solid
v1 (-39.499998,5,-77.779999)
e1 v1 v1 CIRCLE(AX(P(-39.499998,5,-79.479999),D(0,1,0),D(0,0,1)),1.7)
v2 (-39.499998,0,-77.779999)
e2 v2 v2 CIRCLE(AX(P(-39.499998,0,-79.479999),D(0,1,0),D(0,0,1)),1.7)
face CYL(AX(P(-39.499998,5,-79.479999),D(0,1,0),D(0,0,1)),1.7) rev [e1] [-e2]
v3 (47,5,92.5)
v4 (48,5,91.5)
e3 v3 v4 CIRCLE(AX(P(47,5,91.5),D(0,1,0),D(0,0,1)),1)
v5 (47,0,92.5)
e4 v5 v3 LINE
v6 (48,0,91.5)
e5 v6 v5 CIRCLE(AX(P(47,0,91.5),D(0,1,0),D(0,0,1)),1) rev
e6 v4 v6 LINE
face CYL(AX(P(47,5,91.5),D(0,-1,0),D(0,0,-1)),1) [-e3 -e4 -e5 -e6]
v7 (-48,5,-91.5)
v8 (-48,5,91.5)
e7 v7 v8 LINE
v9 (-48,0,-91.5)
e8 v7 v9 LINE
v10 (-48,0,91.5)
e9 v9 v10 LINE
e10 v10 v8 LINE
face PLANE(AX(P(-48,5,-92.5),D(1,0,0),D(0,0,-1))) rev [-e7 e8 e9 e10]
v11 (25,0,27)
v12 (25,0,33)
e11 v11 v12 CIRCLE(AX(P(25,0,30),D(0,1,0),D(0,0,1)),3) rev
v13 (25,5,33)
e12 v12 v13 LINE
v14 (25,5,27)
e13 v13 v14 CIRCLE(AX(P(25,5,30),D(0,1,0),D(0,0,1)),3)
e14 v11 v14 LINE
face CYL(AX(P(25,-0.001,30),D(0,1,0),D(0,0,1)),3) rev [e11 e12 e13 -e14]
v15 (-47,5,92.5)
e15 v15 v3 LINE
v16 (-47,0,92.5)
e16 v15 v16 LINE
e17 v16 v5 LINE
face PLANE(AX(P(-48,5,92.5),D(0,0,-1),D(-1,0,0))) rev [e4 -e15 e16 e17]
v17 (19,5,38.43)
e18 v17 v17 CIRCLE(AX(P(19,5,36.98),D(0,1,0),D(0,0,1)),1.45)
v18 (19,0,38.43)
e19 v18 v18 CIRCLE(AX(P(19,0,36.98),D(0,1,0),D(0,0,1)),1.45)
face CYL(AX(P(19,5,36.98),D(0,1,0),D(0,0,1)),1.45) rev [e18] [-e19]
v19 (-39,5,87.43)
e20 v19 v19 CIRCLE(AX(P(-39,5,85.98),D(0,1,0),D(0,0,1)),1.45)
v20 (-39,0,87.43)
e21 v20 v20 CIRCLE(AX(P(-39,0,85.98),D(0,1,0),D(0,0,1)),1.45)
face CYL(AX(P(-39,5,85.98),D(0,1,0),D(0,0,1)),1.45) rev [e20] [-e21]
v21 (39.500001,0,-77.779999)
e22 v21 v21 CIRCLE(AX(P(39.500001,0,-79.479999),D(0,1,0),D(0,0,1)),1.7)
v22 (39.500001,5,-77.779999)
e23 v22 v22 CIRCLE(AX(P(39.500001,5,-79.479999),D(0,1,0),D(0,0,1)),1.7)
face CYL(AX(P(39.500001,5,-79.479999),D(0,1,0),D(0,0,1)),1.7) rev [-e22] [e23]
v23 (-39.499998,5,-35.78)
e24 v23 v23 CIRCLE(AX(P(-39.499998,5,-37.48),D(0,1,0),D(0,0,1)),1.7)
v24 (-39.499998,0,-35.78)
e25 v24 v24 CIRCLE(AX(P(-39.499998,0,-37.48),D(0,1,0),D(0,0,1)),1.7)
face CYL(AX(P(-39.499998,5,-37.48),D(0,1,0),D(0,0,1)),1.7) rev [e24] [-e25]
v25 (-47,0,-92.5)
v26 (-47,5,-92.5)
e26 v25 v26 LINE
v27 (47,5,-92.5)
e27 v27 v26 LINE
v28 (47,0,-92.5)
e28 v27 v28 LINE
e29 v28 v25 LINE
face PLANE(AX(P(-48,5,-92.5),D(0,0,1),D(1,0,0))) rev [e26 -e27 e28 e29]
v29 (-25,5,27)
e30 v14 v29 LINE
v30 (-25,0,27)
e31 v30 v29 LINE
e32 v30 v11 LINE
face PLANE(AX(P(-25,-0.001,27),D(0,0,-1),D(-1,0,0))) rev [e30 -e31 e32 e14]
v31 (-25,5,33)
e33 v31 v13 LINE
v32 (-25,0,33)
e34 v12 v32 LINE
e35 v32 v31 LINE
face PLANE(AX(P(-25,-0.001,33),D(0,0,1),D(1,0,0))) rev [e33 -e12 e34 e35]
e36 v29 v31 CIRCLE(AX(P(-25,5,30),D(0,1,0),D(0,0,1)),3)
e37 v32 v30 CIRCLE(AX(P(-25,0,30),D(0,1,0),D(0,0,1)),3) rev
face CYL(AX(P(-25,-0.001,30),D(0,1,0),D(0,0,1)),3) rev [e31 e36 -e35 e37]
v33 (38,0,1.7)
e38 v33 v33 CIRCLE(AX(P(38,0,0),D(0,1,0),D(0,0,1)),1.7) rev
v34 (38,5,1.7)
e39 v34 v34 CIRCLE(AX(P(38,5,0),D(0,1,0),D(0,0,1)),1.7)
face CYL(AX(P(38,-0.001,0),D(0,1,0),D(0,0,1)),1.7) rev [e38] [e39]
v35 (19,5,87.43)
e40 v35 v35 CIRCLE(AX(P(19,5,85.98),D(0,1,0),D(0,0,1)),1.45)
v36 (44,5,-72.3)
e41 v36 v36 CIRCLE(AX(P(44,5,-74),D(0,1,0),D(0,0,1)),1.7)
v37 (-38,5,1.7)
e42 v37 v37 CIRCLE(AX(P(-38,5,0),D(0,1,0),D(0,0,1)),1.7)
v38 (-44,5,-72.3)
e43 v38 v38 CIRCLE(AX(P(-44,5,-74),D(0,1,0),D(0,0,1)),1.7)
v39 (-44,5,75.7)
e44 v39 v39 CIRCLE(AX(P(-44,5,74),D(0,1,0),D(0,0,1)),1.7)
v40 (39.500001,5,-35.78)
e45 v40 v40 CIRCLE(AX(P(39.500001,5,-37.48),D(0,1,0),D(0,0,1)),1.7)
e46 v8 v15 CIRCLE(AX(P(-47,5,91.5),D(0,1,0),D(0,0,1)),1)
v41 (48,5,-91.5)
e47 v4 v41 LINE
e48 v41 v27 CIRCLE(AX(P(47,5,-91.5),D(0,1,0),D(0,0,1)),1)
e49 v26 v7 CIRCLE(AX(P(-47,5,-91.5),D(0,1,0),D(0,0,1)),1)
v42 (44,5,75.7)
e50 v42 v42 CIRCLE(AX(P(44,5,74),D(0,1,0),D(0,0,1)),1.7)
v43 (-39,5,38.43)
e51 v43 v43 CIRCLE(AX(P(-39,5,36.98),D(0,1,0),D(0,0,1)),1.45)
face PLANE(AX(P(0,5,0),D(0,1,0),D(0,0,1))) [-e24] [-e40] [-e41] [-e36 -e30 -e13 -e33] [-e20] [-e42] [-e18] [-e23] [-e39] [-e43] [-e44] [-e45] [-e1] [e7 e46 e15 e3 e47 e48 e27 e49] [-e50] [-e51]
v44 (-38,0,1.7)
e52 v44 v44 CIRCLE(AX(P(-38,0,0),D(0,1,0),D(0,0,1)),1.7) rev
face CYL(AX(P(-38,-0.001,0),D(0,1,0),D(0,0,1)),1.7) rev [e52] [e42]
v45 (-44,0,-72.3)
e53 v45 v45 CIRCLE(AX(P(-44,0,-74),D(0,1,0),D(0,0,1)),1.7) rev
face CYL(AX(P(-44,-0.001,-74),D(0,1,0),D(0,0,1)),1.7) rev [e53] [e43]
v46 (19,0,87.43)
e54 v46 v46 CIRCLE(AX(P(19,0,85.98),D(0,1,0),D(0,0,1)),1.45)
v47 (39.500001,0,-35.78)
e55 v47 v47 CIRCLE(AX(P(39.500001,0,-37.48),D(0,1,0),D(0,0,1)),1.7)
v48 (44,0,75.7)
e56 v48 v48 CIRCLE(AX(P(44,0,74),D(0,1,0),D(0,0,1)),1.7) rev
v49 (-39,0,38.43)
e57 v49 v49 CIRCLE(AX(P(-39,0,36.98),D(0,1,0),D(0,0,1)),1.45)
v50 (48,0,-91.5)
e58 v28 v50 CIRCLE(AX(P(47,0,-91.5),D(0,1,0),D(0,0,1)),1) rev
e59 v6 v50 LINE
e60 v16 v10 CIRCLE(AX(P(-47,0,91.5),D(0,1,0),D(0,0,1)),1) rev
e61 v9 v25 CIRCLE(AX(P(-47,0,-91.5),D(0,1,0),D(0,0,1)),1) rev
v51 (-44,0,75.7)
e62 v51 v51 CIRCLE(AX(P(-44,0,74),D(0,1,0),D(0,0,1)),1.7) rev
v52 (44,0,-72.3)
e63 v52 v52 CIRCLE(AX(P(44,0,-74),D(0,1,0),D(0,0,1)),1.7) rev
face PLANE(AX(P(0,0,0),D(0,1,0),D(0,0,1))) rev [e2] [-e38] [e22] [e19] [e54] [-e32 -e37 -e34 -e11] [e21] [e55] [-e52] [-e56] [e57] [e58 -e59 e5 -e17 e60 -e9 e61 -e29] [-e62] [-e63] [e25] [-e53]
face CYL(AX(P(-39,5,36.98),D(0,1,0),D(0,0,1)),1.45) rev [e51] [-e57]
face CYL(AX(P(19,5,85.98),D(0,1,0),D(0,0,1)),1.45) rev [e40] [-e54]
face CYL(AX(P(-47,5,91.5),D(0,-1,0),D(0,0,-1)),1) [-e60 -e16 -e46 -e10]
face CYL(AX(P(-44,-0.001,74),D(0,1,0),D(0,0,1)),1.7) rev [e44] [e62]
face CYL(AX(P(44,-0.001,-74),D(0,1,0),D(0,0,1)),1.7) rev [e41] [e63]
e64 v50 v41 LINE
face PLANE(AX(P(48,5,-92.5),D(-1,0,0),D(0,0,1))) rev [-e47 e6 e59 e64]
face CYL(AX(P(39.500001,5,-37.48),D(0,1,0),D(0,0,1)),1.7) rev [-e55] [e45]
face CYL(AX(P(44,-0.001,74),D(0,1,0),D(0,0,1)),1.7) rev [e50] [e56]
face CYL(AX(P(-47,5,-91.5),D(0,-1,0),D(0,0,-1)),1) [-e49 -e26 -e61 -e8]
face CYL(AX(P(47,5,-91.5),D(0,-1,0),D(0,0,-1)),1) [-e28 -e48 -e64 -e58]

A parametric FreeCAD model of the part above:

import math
import FreeCAD as App
import Part
import Sketcher


def edges_at(feature, points):
    """Names of the edges that pass closest to the given points."""
    edges = feature.Shape.Edges
    near = lambda p: min(range(len(edges)), key=lambda i: edges[i].distToShape(Part.Vertex(*p))[0])
    return sorted({f"Edge{near(p) + 1}" for p in points})


def add_polygon(sketch, points):
    """Adds a closed chain of lines whose ends are joined by coincident constraints."""
    first, n = sketch.GeometryCount, len(points)
    for a, b in zip(points, points[1:] + points[:1]):
        sketch.addGeometry(Part.LineSegment(App.Vector(*a, 0), App.Vector(*b, 0)), False)
    for i in range(n):
        sketch.addConstraint(Sketcher.Constraint("Coincident", first + i, 2, first + (i + 1) % n, 1))

doc = App.newDocument("Part")
body = doc.addObject("PartDesign::Body", "Body")

# Sketch on XZ plane
sketch1 = doc.addObject("Sketcher::SketchObject", "Sketch")
body.addObject(sketch1)
sketch1.AttachmentSupport = (doc.XZ_Plane, [""])
sketch1.MapMode = "FlatFace"
add_polygon(sketch1, [(-48, -92), (-48, 92), (48, 92), (48, -92)])  # lines 0-3
sketch1.addConstraint([
    Sketcher.Constraint("Vertical", 0),
    Sketcher.Constraint("Horizontal", 1),
    Sketcher.Constraint("Vertical", 2),
    Sketcher.Constraint("Horizontal", 3),
    Sketcher.Constraint("Symmetric", 0, 2, 2, 2, -1, 1),
    Sketcher.Constraint("DistanceX", 1, 1, 1, 2, 96.0),
    Sketcher.Constraint("DistanceY", 0, 1, 0, 2, 185.0),
])
pad1 = doc.addObject("PartDesign::Pad", "Pad")
body.addObject(pad1)
pad1.Profile = sketch1
pad1.Length = 5
pad1.Reversed = True

# Sketch on XZ plane
sketch2 = doc.addObject("Sketcher::SketchObject", "Sketch001")
body.addObject(sketch2)
sketch2.AttachmentSupport = (doc.XZ_Plane, [""])
sketch2.MapMode = "FlatFace"
sketch2.AttachmentOffset = App.Placement(App.Vector(0, 0, -5), App.Rotation())
sketch2.addGeometry(Part.Circle(App.Vector(44, -74, 0), App.Vector(0, 0, 1), 1.7), False)
sketch2.addConstraint([
    Sketcher.Constraint("Diameter", 0, 3.4),
    Sketcher.Constraint("DistanceX", -1, 1, 0, 3, 44.0),
    Sketcher.Constraint("DistanceY", 0, 3, -1, 1, 74.0),
])
pocket1 = doc.addObject("PartDesign::Pocket", "Pocket")
body.addObject(pocket1)
pocket1.Profile = sketch2
pocket1.Type = "UpToFirst"
pocket1.Reversed = True

# Sketch on XZ plane
sketch3 = doc.addObject("Sketcher::SketchObject", "Sketch002")
body.addObject(sketch3)
sketch3.AttachmentSupport = (doc.XZ_Plane, [""])
sketch3.MapMode = "FlatFace"
sketch3.AttachmentOffset = App.Placement(App.Vector(0, 0, -5), App.Rotation())
sketch3.addGeometry(Part.Circle(App.Vector(-44, -74, 0), App.Vector(0, 0, 1), 1.7), False)
sketch3.addConstraint([
    Sketcher.Constraint("Diameter", 0, 3.4),
    Sketcher.Constraint("DistanceX", 0, 3, -1, 1, 44.0),
    Sketcher.Constraint("DistanceY", 0, 3, -1, 1, 74.0),
])
pocket2 = doc.addObject("PartDesign::Pocket", "Pocket001")
body.addObject(pocket2)
pocket2.Profile = sketch3
pocket2.Type = "UpToFirst"
pocket2.Reversed = True

# Sketch on XZ plane
sketch4 = doc.addObject("Sketcher::SketchObject", "Sketch003")
body.addObject(sketch4)
sketch4.AttachmentSupport = (doc.XZ_Plane, [""])
sketch4.MapMode = "FlatFace"
sketch4.AttachmentOffset = App.Placement(App.Vector(0, 0, -5), App.Rotation())
sketch4.addGeometry(Part.Circle(App.Vector(44, 74, 0), App.Vector(0, 0, 1), 1.7), False)
sketch4.addConstraint([
    Sketcher.Constraint("Diameter", 0, 3.4),
    Sketcher.Constraint("DistanceX", -1, 1, 0, 3, 44.0),
    Sketcher.Constraint("DistanceY", -1, 1, 0, 3, 74.0),
])
pocket3 = doc.addObject("PartDesign::Pocket", "Pocket002")
body.addObject(pocket3)
pocket3.Profile = sketch4
pocket3.Type = "UpToFirst"
pocket3.Reversed = True

# Sketch on XZ plane
sketch5 = doc.addObject("Sketcher::SketchObject", "Sketch004")
body.addObject(sketch5)
sketch5.AttachmentSupport = (doc.XZ_Plane, [""])
sketch5.MapMode = "FlatFace"
sketch5.AttachmentOffset = App.Placement(App.Vector(0, 0, -5), App.Rotation())
sketch5.addGeometry(Part.Circle(App.Vector(-44, 74, 0), App.Vector(0, 0, 1), 1.7), False)
sketch5.addConstraint([
    Sketcher.Constraint("Diameter", 0, 3.4),
    Sketcher.Constraint("DistanceX", 0, 3, -1, 1, 44.0),
    Sketcher.Constraint("DistanceY", -1, 1, 0, 3, 74.0),
])
pocket4 = doc.addObject("PartDesign::Pocket", "Pocket003")
body.addObject(pocket4)
pocket4.Profile = sketch5
pocket4.Type = "UpToFirst"
pocket4.Reversed = True

# Sketch on XZ plane
sketch6 = doc.addObject("Sketcher::SketchObject", "Sketch005")
body.addObject(sketch6)
sketch6.AttachmentSupport = (doc.XZ_Plane, [""])
sketch6.MapMode = "FlatFace"
sketch6.AttachmentOffset = App.Placement(App.Vector(0, 0, -5), App.Rotation())
sketch6.addGeometry(Part.Circle(App.Vector(38, 0, 0), App.Vector(0, 0, 1), 1.7), False)
sketch6.addConstraint([
    Sketcher.Constraint("PointOnObject", 0, 3, -1),
    Sketcher.Constraint("Diameter", 0, 3.4),
    Sketcher.Constraint("DistanceX", -1, 1, 0, 3, 38.0),
])
pocket5 = doc.addObject("PartDesign::Pocket", "Pocket004")
body.addObject(pocket5)
pocket5.Profile = sketch6
pocket5.Type = "UpToFirst"
pocket5.Reversed = True

# Sketch on XZ plane
sketch7 = doc.addObject("Sketcher::SketchObject", "Sketch006")
body.addObject(sketch7)
sketch7.AttachmentSupport = (doc.XZ_Plane, [""])
sketch7.MapMode = "FlatFace"
sketch7.AttachmentOffset = App.Placement(App.Vector(0, 0, -5), App.Rotation())
sketch7.addGeometry(Part.Circle(App.Vector(-38, 0, 0), App.Vector(0, 0, 1), 1.7), False)
sketch7.addConstraint([
    Sketcher.Constraint("PointOnObject", 0, 3, -1),
    Sketcher.Constraint("Diameter", 0, 3.4),
    Sketcher.Constraint("DistanceX", 0, 3, -1, 1, 38.0),
])
pocket6 = doc.addObject("PartDesign::Pocket", "Pocket005")
body.addObject(pocket6)
pocket6.Profile = sketch7
pocket6.Type = "UpToFirst"
pocket6.Reversed = True
doc.recompute()

fillet = doc.addObject("PartDesign::Fillet", "Fillet")
body.addObject(fillet)
fillet.Base = (pocket6, edges_at(pocket6, [
    (48, 2.5, 92.5),
    (-48, 2.5, 92.5),
    (-48, 2.5, -92.5),
    (48, 2.5, -92.5),
]))
fillet.Radius = 1

# Sketch on XZ plane
sketch8 = doc.addObject("Sketcher::SketchObject", "Sketch007")
body.addObject(sketch8)
sketch8.AttachmentSupport = (doc.XZ_Plane, [""])
sketch8.MapMode = "FlatFace"
sketch8.AttachmentOffset = App.Placement(App.Vector(0, 0, -5), App.Rotation())
sketch8.addGeometry([
    Part.Circle(App.Vector(-39, 86, 0), App.Vector(0, 0, 1), 1.4),
    Part.Circle(App.Vector(19, 86, 0), App.Vector(0, 0, 1), 1.4),
    Part.Circle(App.Vector(-39, 37, 0), App.Vector(0, 0, 1), 1.4),
    Part.Circle(App.Vector(19, 37, 0), App.Vector(0, 0, 1), 1.4),
], False)
sketch8.addConstraint([
    Sketcher.Constraint("Equal", 0, 1),
    Sketcher.Constraint("Equal", 1, 2),
    Sketcher.Constraint("Equal", 2, 3),
    Sketcher.Constraint("Horizontal", 0, 3, 1, 3),
    Sketcher.Constraint("Horizontal", 2, 3, 3, 3),
    Sketcher.Constraint("Vertical", 0, 3, 2, 3),
    Sketcher.Constraint("Vertical", 1, 3, 3, 3),
    Sketcher.Constraint("Diameter", 0, 2.9),
    Sketcher.Constraint("DistanceX", 0, 3, -1, 1, 39.0),
    Sketcher.Constraint("DistanceX", -1, 1, 1, 3, 19.0),
    Sketcher.Constraint("DistanceY", 2, 3, 0, 3, 49.0),
    Sketcher.Constraint("DistanceY", -1, 1, 0, 3, 85.98),
])
doc.recompute()
hole = doc.addObject("PartDesign::Hole", "Hole")
body.addObject(hole)
hole.Profile = sketch8
hole.ThreadType = "None"
hole.Diameter = 2.9
hole.DepthType = "ThroughAll"
hole.Reversed = True

# Sketch on XZ plane
sketch9 = doc.addObject("Sketcher::SketchObject", "Sketch008")
body.addObject(sketch9)
sketch9.AttachmentSupport = (doc.XZ_Plane, [""])
sketch9.MapMode = "FlatFace"
sketch9.AttachmentOffset = App.Placement(App.Vector(0, 0, -5), App.Rotation())
sketch9.addGeometry([
    Part.Circle(App.Vector(-39.5, -79.5, 0), App.Vector(0, 0, 1), 1.7),
    Part.Circle(App.Vector(-39.5, -37.5, 0), App.Vector(0, 0, 1), 1.7),
    Part.Circle(App.Vector(39.5, -37.5, 0), App.Vector(0, 0, 1), 1.7),
    Part.Circle(App.Vector(39.5, -79.5, 0), App.Vector(0, 0, 1), 1.7),
], False)
sketch9.addConstraint([
    Sketcher.Constraint("Equal", 0, 1),
    Sketcher.Constraint("Equal", 1, 2),
    Sketcher.Constraint("Equal", 2, 3),
    Sketcher.Constraint("Symmetric", 1, 3, 2, 3, -2),
    Sketcher.Constraint("Symmetric", 0, 3, 3, 3, -2),
    Sketcher.Constraint("Vertical", 0, 3, 1, 3),
    Sketcher.Constraint("Diameter", 0, 3.4),
    Sketcher.Constraint("DistanceY", 0, 3, 1, 3, 42.0),
    Sketcher.Constraint("DistanceX", 1, 3, 2, 3, 78.999999),
    Sketcher.Constraint("DistanceY", 0, 3, -1, 1, 79.479999),
])
doc.recompute()
hole2 = doc.addObject("PartDesign::Hole", "Hole001")
body.addObject(hole2)
hole2.Profile = sketch9
hole2.ThreadType = "None"
hole2.Diameter = 3.4
hole2.DepthType = "ThroughAll"
hole2.Reversed = True

# Sketch on XZ plane
sketch10 = doc.addObject("Sketcher::SketchObject", "Sketch009")
body.addObject(sketch10)
sketch10.AttachmentSupport = (doc.XZ_Plane, [""])
sketch10.MapMode = "FlatFace"
sketch10.AttachmentOffset = App.Placement(App.Vector(0, 0, -5), App.Rotation())
sketch10.addGeometry([
    Part.LineSegment(App.Vector(25, 27, 0), App.Vector(-25, 27, 0)),
    Part.ArcOfCircle(Part.Circle(App.Vector(-25, 30, 0), App.Vector(0, 0, 1), 3), math.radians(90), math.radians(270)),
    Part.LineSegment(App.Vector(-25, 33, 0), App.Vector(25, 33, 0)),
    Part.ArcOfCircle(Part.Circle(App.Vector(25, 30, 0), App.Vector(0, 0, 1), 3), math.radians(-90), math.radians(90)),
], False)
sketch10.addConstraint([
    Sketcher.Constraint("Tangent", 0, 2, 1, 2),
    Sketcher.Constraint("Tangent", 1, 1, 2, 1),
    Sketcher.Constraint("Tangent", 2, 2, 3, 2),
    Sketcher.Constraint("Tangent", 3, 1, 0, 1),
    Sketcher.Constraint("Horizontal", 0),
    Sketcher.Constraint("Horizontal", 2),
    Sketcher.Constraint("Radius", 1, 3.0),
    Sketcher.Constraint("DistanceX", 0, 2, 0, 1, 50.0),
    Sketcher.Constraint("DistanceX", 1, 3, -1, 1, 25.0),
    Sketcher.Constraint("DistanceY", -1, 1, 1, 3, 30.0),
])
pocket7 = doc.addObject("PartDesign::Pocket", "Pocket006")
body.addObject(pocket7)
pocket7.Profile = sketch10
pocket7.Type = "UpToFirst"
pocket7.Reversed = True

doc.recompute()
